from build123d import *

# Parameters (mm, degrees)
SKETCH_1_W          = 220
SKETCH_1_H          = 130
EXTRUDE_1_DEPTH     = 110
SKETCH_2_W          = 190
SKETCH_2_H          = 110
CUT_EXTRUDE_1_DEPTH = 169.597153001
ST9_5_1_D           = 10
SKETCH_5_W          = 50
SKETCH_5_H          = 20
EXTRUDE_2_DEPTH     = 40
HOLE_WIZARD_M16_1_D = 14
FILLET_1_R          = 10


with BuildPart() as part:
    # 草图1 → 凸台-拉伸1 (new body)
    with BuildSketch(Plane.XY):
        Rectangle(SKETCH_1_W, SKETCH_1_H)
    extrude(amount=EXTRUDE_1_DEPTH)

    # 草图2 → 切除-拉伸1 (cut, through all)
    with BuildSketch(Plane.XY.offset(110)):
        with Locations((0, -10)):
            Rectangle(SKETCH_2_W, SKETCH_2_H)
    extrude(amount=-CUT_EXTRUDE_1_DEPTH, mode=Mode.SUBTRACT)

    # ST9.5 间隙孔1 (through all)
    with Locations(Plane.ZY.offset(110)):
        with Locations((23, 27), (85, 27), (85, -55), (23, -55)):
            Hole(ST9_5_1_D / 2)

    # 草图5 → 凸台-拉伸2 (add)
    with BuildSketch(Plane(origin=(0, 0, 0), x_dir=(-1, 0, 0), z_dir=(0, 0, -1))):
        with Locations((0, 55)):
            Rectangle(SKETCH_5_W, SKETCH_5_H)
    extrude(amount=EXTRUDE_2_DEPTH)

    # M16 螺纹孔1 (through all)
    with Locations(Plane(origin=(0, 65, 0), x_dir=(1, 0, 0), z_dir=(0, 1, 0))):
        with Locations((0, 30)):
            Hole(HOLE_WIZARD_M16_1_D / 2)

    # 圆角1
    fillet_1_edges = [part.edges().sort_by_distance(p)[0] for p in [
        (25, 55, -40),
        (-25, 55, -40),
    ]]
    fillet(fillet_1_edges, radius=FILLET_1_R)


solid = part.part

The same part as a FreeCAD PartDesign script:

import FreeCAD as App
import Part
import Sketcher

V = App.Vector


def edges_at(feature, points):
    """Names of the edges that pass closest to the given points."""
    edges = feature.Shape.Edges
    near = lambda p: min(range(len(edges)), key=lambda i: edges[i].distToShape(Part.Vertex(*p))[0])
    return sorted({f"Edge{near(p) + 1}" for p in points})


def add_polygon(sketch, points):
    """Adds a closed chain of lines whose ends are joined by coincident constraints."""
    first, n = sketch.GeometryCount, len(points)
    for a, b in zip(points, points[1:] + points[:1]):
        sketch.addGeometry(Part.LineSegment(App.Vector(*a, 0), App.Vector(*b, 0)), False)
    for i in range(n):
        sketch.addConstraint(Sketcher.Constraint("Coincident", first + i, 2, first + (i + 1) % n, 1))

doc = App.newDocument("Part")
body = doc.addObject("PartDesign::Body", "Body")

# Sketch on XY plane
sketch1 = doc.addObject("Sketcher::SketchObject", "Sketch")
body.addObject(sketch1)
sketch1.AttachmentSupport = (doc.XY_Plane, [""])
sketch1.MapMode = "FlatFace"
add_polygon(sketch1, [(-110, 65), (-110, -65), (110, -65), (110, 65)])  # lines 0-3
sketch1.addConstraint([
    Sketcher.Constraint("Vertical", 0),
    Sketcher.Constraint("Horizontal", 1),
    Sketcher.Constraint("Vertical", 2),
    Sketcher.Constraint("Horizontal", 3),
    Sketcher.Constraint("Symmetric", 0, 2, 2, 2, -1, 1),
    Sketcher.Constraint("DistanceX", 1, 1, 1, 2, 220.0),
    Sketcher.Constraint("DistanceY", 0, 2, 0, 1, 130.0),
])
pad1 = doc.addObject("PartDesign::Pad", "Pad")
body.addObject(pad1)
pad1.Profile = sketch1
pad1.Length = 110

# Sketch on XY plane
sketch2 = doc.addObject("Sketcher::SketchObject", "Sketch001")
body.addObject(sketch2)
sketch2.AttachmentSupport = (doc.XY_Plane, [""])
sketch2.MapMode = "FlatFace"
sketch2.AttachmentOffset = App.Placement(V(0, 0, 110), App.Rotation())
add_polygon(sketch2, [(-95, 45), (-95, -65), (95, -65), (95, 45)])  # lines 0-3
sketch2.addConstraint([
    Sketcher.Constraint("Vertical", 0),
    Sketcher.Constraint("Horizontal", 1),
    Sketcher.Constraint("Vertical", 2),
    Sketcher.Constraint("Horizontal", 3),
    Sketcher.Constraint("DistanceX", 1, 1, 1, 2, 190.0),
    Sketcher.Constraint("DistanceY", 0, 2, 0, 1, 110.0),
    Sketcher.Constraint("DistanceX", 0, 2, -1, 1, 95.0),
    Sketcher.Constraint("DistanceY", 0, 2, -1, 1, 65.0),
])
pocket1 = doc.addObject("PartDesign::Pocket", "Pocket")
body.addObject(pocket1)
pocket1.Profile = sketch2
pocket1.Type = "ThroughAll"

# Sketch on YZ plane
sketch3 = doc.addObject("Sketcher::SketchObject", "Sketch002")
body.addObject(sketch3)
sketch3.AttachmentSupport = (doc.YZ_Plane, [""])
sketch3.MapMode = "FlatFace"
sketch3.AttachmentOffset = App.Placement(V(0, 0, -110), App.Rotation())
sketch3.addGeometry([
    Part.Circle(V(27, 23, 0), V(0, 0, 1), 5),
    Part.Circle(V(27, 85, 0), V(0, 0, 1), 5),
    Part.Circle(V(-55, 85, 0), V(0, 0, 1), 5),
    Part.Circle(V(-55, 23, 0), V(0, 0, 1), 5),
], False)
sketch3.addConstraint([
    Sketcher.Constraint("Equal", 0, 1),
    Sketcher.Constraint("Equal", 1, 2),
    Sketcher.Constraint("Equal", 2, 3),
    Sketcher.Constraint("Horizontal", 1, 3, 2, 3),
    Sketcher.Constraint("Horizontal", 0, 3, 3, 3),
    Sketcher.Constraint("Vertical", 0, 3, 1, 3),
    Sketcher.Constraint("Vertical", 2, 3, 3, 3),
    Sketcher.Constraint("Diameter", 0, 10.0),
    Sketcher.Constraint("DistanceX", -1, 1, 0, 3, 27.0),
    Sketcher.Constraint("DistanceY", -1, 1, 0, 3, 23.0),
    Sketcher.Constraint("DistanceY", -1, 1, 1, 3, 85.0),
    Sketcher.Constraint("DistanceX", 2, 3, -1, 1, 55.0),
])
doc.recompute()
hole = doc.addObject("PartDesign::Hole", "Hole")
body.addObject(hole)
hole.Profile = sketch3
hole.ThreadType = "None"
hole.Diameter = 10
hole.DepthType = "ThroughAll"
hole.Reversed = True

# Sketch on XY plane
sketch4 = doc.addObject("Sketcher::SketchObject", "Sketch003")
body.addObject(sketch4)
sketch4.AttachmentSupport = (doc.XY_Plane, [""])
sketch4.MapMode = "FlatFace"
add_polygon(sketch4, [(25, 65), (25, 45), (-25, 45), (-25, 65)])  # lines 0-3
sketch4.addConstraint([
    Sketcher.Constraint("Vertical", 0),
    Sketcher.Constraint("Horizontal", 1),
    Sketcher.Constraint("Vertical", 2),
    Sketcher.Constraint("Horizontal", 3),
    Sketcher.Constraint("DistanceX", 1, 2, 1, 1, 50.0),
    Sketcher.Constraint("DistanceY", 0, 2, 0, 1, 20.0),
    Sketcher.Constraint("DistanceX", -1, 1, 0, 2, 25.0),
    Sketcher.Constraint("DistanceY", -1, 1, 0, 2, 45.0),
])
pad2 = doc.addObject("PartDesign::Pad", "Pad001")
body.addObject(pad2)
pad2.Profile = sketch4
pad2.Length = 40
pad2.Reversed = True

# Sketch on XZ plane
sketch5 = doc.addObject("Sketcher::SketchObject", "Sketch004")
body.addObject(sketch5)
sketch5.AttachmentSupport = (doc.XZ_Plane, [""])
sketch5.MapMode = "FlatFace"
sketch5.AttachmentOffset = App.Placement(V(0, 0, -65), App.Rotation())
sketch5.addGeometry(Part.Circle(V(0, -30, 0), V(0, 0, 1), 7), False)
sketch5.addConstraint([
    Sketcher.Constraint("PointOnObject", 0, 3, -2),
    Sketcher.Constraint("Diameter", 0, 14.0),
    Sketcher.Constraint("DistanceY", 0, 3, -1, 1, 30.0),
])
doc.recompute()
hole2 = doc.addObject("PartDesign::Hole", "Hole001")
body.addObject(hole2)
hole2.Profile = sketch5
hole2.ThreadType = "None"
hole2.Diameter = 14
hole2.DepthType = "ThroughAll"
hole2.Reversed = True
doc.recompute()

fillet = doc.addObject("PartDesign::Fillet", "Fillet")
body.addObject(fillet)
fillet.Base = (hole2, edges_at(hole2, [(25, 55, -40), (-25, 55, -40)]))
fillet.Radius = 10

doc.recompute()
